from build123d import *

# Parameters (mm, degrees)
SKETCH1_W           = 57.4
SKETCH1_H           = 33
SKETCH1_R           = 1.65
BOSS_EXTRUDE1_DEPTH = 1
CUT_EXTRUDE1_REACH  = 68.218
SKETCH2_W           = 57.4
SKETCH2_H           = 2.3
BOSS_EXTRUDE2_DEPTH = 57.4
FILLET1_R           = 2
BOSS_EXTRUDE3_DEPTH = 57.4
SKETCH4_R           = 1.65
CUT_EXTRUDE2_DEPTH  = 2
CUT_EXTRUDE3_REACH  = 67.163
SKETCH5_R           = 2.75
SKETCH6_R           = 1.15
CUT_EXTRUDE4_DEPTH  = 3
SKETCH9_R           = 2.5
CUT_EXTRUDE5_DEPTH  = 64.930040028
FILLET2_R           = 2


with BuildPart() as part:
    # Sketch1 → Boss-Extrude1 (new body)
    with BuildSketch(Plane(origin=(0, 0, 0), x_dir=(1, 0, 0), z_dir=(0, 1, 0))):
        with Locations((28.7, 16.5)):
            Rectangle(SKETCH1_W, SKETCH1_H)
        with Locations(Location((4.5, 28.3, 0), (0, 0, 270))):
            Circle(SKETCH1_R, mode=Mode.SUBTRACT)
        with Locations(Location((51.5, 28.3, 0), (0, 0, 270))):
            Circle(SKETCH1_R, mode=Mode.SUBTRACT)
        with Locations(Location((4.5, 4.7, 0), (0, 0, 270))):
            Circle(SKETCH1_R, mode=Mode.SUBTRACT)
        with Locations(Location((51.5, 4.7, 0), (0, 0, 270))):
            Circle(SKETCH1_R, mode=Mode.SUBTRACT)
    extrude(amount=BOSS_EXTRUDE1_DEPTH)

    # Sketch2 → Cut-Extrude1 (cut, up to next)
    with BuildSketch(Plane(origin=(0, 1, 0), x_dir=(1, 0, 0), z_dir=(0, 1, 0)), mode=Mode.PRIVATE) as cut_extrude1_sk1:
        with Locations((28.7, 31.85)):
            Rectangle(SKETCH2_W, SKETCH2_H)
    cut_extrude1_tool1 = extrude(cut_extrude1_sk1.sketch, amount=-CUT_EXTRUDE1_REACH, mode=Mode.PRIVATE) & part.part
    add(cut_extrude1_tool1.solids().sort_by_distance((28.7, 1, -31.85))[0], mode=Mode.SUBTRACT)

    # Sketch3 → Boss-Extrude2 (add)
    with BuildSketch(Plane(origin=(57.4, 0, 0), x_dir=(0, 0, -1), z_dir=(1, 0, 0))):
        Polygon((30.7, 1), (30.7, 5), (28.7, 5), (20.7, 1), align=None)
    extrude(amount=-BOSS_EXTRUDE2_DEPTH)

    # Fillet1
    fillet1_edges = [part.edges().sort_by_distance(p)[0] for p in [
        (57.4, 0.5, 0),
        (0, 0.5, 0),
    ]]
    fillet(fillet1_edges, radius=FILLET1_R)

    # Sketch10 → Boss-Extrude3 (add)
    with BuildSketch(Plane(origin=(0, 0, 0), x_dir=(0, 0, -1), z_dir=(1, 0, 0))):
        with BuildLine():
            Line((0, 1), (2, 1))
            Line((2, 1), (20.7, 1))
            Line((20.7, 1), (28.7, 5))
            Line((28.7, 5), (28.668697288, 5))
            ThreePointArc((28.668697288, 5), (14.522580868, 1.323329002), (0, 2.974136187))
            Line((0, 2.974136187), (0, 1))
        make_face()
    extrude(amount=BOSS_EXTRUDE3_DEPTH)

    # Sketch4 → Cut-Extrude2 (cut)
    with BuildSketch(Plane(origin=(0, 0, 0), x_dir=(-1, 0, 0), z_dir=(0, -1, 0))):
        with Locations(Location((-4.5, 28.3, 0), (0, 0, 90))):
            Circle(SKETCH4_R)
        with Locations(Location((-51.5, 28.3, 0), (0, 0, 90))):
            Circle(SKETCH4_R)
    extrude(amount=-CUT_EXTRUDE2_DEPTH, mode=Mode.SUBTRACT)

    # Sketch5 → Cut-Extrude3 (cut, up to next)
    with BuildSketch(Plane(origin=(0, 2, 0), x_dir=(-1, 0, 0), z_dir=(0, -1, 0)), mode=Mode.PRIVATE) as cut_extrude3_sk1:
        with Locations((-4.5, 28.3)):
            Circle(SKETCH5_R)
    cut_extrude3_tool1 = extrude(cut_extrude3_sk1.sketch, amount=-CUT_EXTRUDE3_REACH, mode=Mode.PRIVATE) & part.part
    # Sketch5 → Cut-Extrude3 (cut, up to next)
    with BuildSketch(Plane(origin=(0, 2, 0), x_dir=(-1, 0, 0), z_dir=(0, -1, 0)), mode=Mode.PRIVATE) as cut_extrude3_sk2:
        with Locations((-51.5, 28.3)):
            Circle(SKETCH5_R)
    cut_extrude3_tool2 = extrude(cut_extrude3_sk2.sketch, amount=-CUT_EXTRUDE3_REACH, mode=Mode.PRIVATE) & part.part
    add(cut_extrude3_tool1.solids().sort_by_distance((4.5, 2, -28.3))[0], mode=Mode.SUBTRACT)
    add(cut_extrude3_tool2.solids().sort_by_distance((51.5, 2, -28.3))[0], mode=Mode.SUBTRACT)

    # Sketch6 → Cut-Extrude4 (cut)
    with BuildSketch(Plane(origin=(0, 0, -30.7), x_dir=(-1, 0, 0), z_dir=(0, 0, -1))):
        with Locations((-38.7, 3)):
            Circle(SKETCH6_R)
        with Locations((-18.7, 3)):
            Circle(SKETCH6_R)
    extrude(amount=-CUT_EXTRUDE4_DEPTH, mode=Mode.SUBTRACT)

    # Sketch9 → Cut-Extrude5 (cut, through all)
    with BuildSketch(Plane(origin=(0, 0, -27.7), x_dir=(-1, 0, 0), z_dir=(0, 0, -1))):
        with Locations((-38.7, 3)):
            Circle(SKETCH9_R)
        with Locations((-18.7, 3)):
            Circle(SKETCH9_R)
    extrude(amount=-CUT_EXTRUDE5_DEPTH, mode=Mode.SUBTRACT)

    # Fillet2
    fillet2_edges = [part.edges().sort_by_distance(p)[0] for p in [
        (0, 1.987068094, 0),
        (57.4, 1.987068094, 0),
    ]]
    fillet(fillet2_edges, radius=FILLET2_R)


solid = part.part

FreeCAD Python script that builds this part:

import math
import FreeCAD as App
import Part
import Sketcher


def edges_at(feature, points):
    """Names of the edges that pass closest to the given points."""
    edges = feature.Shape.Edges
    near = lambda p: min(range(len(edges)), key=lambda i: edges[i].distToShape(Part.Vertex(*p))[0])
    return sorted({f"Edge{near(p) + 1}" for p in points})


def add_polygon(sketch, points):
    """Adds a closed chain of lines whose ends are joined by coincident constraints."""
    first, n = sketch.GeometryCount, len(points)
    for a, b in zip(points, points[1:] + points[:1]):
        sketch.addGeometry(Part.LineSegment(App.Vector(*a, 0), App.Vector(*b, 0)), False)
    for i in range(n):
        sketch.addConstraint(Sketcher.Constraint("Coincident", first + i, 2, first + (i + 1) % n, 1))

doc = App.newDocument("Part")
body = doc.addObject("PartDesign::Body", "Body")

# Sketch on XZ plane
sketch1 = body.newObject("Sketcher::SketchObject", "Sketch")
sketch1.AttachmentSupport = (doc.getObject("XZ_Plane"), [""])
sketch1.MapMode = "FlatFace"
add_polygon(sketch1, [(0, -33), (0, 0), (57.4, 0), (57.4, -33)])  # lines 0-3
sketch1.addGeometry(Part.Circle(App.Vector(4.5, -4.7, 0), App.Vector(0, 0, 1), 1.65), False)  # 4
sketch1.addGeometry(Part.Circle(App.Vector(51.5, -4.7, 0), App.Vector(0, 0, 1), 1.65), False)  # 5
sketch1.addGeometry(Part.Circle(App.Vector(4.5, -28.3, 0), App.Vector(0, 0, 1), 1.65), False)  # 6
sketch1.addGeometry(Part.Circle(App.Vector(51.5, -28.3, 0), App.Vector(0, 0, 1), 1.65), False)  # 7
sketch1.addConstraint([
    Sketcher.Constraint("Vertical", 0),
    Sketcher.Constraint("Horizontal", 1),
    Sketcher.Constraint("Vertical", 2),
    Sketcher.Constraint("Horizontal", 3),
    Sketcher.Constraint("Coincident", 0, 2, -1, 1),
    Sketcher.Constraint("Equal", 4, 5),
    Sketcher.Constraint("Equal", 5, 6),
    Sketcher.Constraint("Equal", 6, 7),
    Sketcher.Constraint("Horizontal", 4, 3, 5, 3),
    Sketcher.Constraint("Horizontal", 6, 3, 7, 3),
    Sketcher.Constraint("Vertical", 4, 3, 6, 3),
    Sketcher.Constraint("Vertical", 5, 3, 7, 3),
    Sketcher.Constraint("Diameter", 4, 3.3),
    Sketcher.Constraint("DistanceY", 0, 1, 0, 2, 33.0),
    Sketcher.Constraint("DistanceX", 1, 1, 1, 2, 57.4),
    Sketcher.Constraint("DistanceX", 4, 3, 5, 3, 47.0),
    Sketcher.Constraint("DistanceX", -1, 1, 4, 3, 4.5),
    Sketcher.Constraint("DistanceY", 4, 3, -1, 1, 4.7),
    Sketcher.Constraint("DistanceY", 6, 3, -1, 1, 28.3),
])
pad1 = body.newObject("PartDesign::Pad", "Pad")
pad1.Profile = sketch1
pad1.Length = 1
pad1.Reversed = True

# Sketch on XZ plane
sketch2 = body.newObject("Sketcher::SketchObject", "Sketch001")
sketch2.AttachmentSupport = (doc.getObject("XZ_Plane"), [""])
sketch2.MapMode = "FlatFace"
sketch2.AttachmentOffset = App.Placement(App.Vector(0, 0, -1), App.Rotation())
add_polygon(sketch2, [(0, -33), (0, -30.7), (57.4, -30.7), (57.4, -33)])  # lines 0-3
sketch2.addConstraint([
    Sketcher.Constraint("Vertical", 0),
    Sketcher.Constraint("Horizontal", 1),
    Sketcher.Constraint("Vertical", 2),
    Sketcher.Constraint("Horizontal", 3),
    Sketcher.Constraint("PointOnObject", 0, 2, -2),
    Sketcher.Constraint("DistanceX", 1, 1, 1, 2, 57.4),
    Sketcher.Constraint("DistanceY", 0, 1, 0, 2, 2.3),
    Sketcher.Constraint("DistanceY", 2, 2, -1, 1, 33.0),
])
pocket1 = body.newObject("PartDesign::Pocket", "Pocket")
pocket1.Profile = sketch2
pocket1.Type = "UpToFirst"
pocket1.Reversed = True

# Sketch on YZ plane
sketch3 = body.newObject("Sketcher::SketchObject", "Sketch002")
sketch3.AttachmentSupport = (doc.getObject("YZ_Plane"), [""])
sketch3.MapMode = "FlatFace"
sketch3.AttachmentOffset = App.Placement(App.Vector(0, 0, 57.4), App.Rotation())
add_polygon(sketch3, [(1, -30.7), (5, -30.7), (5, -28.7), (1, -20.7)])  # lines 0-3
sketch3.addConstraint([
    Sketcher.Constraint("Horizontal", 0),
    Sketcher.Constraint("Vertical", 1),
    Sketcher.Constraint("Vertical", 3),
    Sketcher.Constraint("DistanceX", 0, 1, 0, 2, 4.0),
    Sketcher.Constraint("DistanceY", 1, 1, 1, 2, 2.0),
    Sketcher.Constraint("DistanceY", 3, 2, 3, 1, 10.0),
    Sketcher.Constraint("DistanceX", -1, 1, 0, 2, 5.0),
    Sketcher.Constraint("DistanceY", 0, 2, -1, 1, 30.7),
])
pad2 = body.newObject("PartDesign::Pad", "Pad001")
pad2.Profile = sketch3
pad2.Length = 57.4
pad2.Reversed = True
doc.recompute()

fillet = body.newObject("PartDesign::Fillet", "Fillet")
fillet.Base = (pad2, edges_at(pad2, [(57.4, 0.5, 0), (0, 0.5, 0)]))
fillet.Radius = 2

# Sketch on YZ plane
sketch4 = body.newObject("Sketcher::SketchObject", "Sketch003")
sketch4.AttachmentSupport = (doc.getObject("YZ_Plane"), [""])
sketch4.MapMode = "FlatFace"
sketch4.addGeometry([
    Part.LineSegment(App.Vector(1, 0, 0), App.Vector(1, -20.7, 0)),  # 0
    Part.LineSegment(App.Vector(1, -20.7, 0), App.Vector(5, -28.7, 0)),  # 1
    Part.LineSegment(App.Vector(5, -28.7, 0), App.Vector(5, -28.668697, 0)),  # 2
    Part.ArcOfCircle(Part.Circle(App.Vector(41.223832, -11.703025, 0), App.Vector(0, 0, 1), 40), math.radians(162.987781), math.radians(205.096354)),  # 3
    Part.LineSegment(App.Vector(2.974136, 0, 0), App.Vector(1, 0, 0)),  # 4
], False)
sketch4.addConstraint([
    Sketcher.Constraint("Coincident", 0, 2, 1, 1),
    Sketcher.Constraint("Coincident", 1, 2, 2, 1),
    Sketcher.Constraint("Coincident", 2, 2, 3, 2),
    Sketcher.Constraint("Coincident", 3, 1, 4, 1),
    Sketcher.Constraint("Coincident", 4, 2, 0, 1),
    Sketcher.Constraint("Vertical", 0),
    Sketcher.Constraint("Vertical", 2),
    Sketcher.Constraint("Horizontal", 4),
    Sketcher.Constraint("PointOnObject", 3, 1, -1),
    Sketcher.Constraint("Radius", 3, 40.0),
    Sketcher.Constraint("DistanceY", 0, 2, 0, 1, 20.7),
    Sketcher.Constraint("DistanceX", -1, 1, 0, 2, 1.0),
    Sketcher.Constraint("DistanceX", -1, 1, 1, 2, 5.0),
    Sketcher.Constraint("DistanceY", 1, 2, 0, 2, 8.0),
    Sketcher.Constraint("DistanceX", 4, 2, 4, 1, 1.974136),
    Sketcher.Constraint("DistanceY", 2, 1, 2, 2, 0.031303),
])
pad3 = body.newObject("PartDesign::Pad", "Pad002")
pad3.Profile = sketch4
pad3.Length = 57.4

# Sketch on XZ plane
sketch5 = body.newObject("Sketcher::SketchObject", "Sketch004")
sketch5.AttachmentSupport = (doc.getObject("XZ_Plane"), [""])
sketch5.MapMode = "FlatFace"
sketch5.addGeometry([
    Part.Circle(App.Vector(4.5, -28.3, 0), App.Vector(0, 0, 1), 1.65),
    Part.Circle(App.Vector(51.5, -28.3, 0), App.Vector(0, 0, 1), 1.65),
], False)
sketch5.addConstraint([
    Sketcher.Constraint("Equal", 0, 1),
    Sketcher.Constraint("Horizontal", 0, 3, 1, 3),
    Sketcher.Constraint("Diameter", 0, 3.3),
    Sketcher.Constraint("DistanceX", 0, 3, 1, 3, 47.0),
    Sketcher.Constraint("DistanceX", -1, 1, 0, 3, 4.5),
    Sketcher.Constraint("DistanceY", 0, 3, -1, 1, 28.3),
])
pocket2 = body.newObject("PartDesign::Pocket", "Pocket001")
pocket2.Profile = sketch5
pocket2.Length = 2

# Sketch on XZ plane
sketch6 = body.newObject("Sketcher::SketchObject", "Sketch005")
sketch6.AttachmentSupport = (doc.getObject("XZ_Plane"), [""])
sketch6.MapMode = "FlatFace"
sketch6.AttachmentOffset = App.Placement(App.Vector(0, 0, -2), App.Rotation())
sketch6.addGeometry(Part.Circle(App.Vector(4.5, -28.3, 0), App.Vector(0, 0, 1), 2.75), False)
sketch6.addConstraint([
    Sketcher.Constraint("Diameter", 0, 5.5),
    Sketcher.Constraint("DistanceX", -1, 1, 0, 3, 4.5),
    Sketcher.Constraint("DistanceY", 0, 3, -1, 1, 28.3),
])
pocket3 = body.newObject("PartDesign::Pocket", "Pocket002")
pocket3.Profile = sketch6
pocket3.Type = "UpToFirst"

# Sketch on XZ plane
sketch7 = body.newObject("Sketcher::SketchObject", "Sketch006")
sketch7.AttachmentSupport = (doc.getObject("XZ_Plane"), [""])
sketch7.MapMode = "FlatFace"
sketch7.AttachmentOffset = App.Placement(App.Vector(0, 0, -2), App.Rotation())
sketch7.addGeometry(Part.Circle(App.Vector(51.5, -28.3, 0), App.Vector(0, 0, 1), 2.75), False)
sketch7.addConstraint([
    Sketcher.Constraint("Diameter", 0, 5.5),
    Sketcher.Constraint("DistanceX", -1, 1, 0, 3, 51.5),
    Sketcher.Constraint("DistanceY", 0, 3, -1, 1, 28.3),
])
pocket4 = body.newObject("PartDesign::Pocket", "Pocket003")
pocket4.Profile = sketch7
pocket4.Type = "UpToFirst"

# Sketch on XY plane
sketch8 = body.newObject("Sketcher::SketchObject", "Sketch007")
sketch8.AttachmentSupport = (doc.getObject("XY_Plane"), [""])
sketch8.MapMode = "FlatFace"
sketch8.AttachmentOffset = App.Placement(App.Vector(0, 0, -30.7), App.Rotation())
sketch8.addGeometry([
    Part.Circle(App.Vector(38.7, 3, 0), App.Vector(0, 0, 1), 1.15),
    Part.Circle(App.Vector(18.7, 3, 0), App.Vector(0, 0, 1), 1.15),
], False)
sketch8.addConstraint([
    Sketcher.Constraint("Equal", 0, 1),
    Sketcher.Constraint("Horizontal", 0, 3, 1, 3),
    Sketcher.Constraint("Diameter", 0, 2.3),
    Sketcher.Constraint("DistanceY", -1, 1, 0, 3, 3.0),
    Sketcher.Constraint("DistanceX", 1, 3, 0, 3, 20.0),
    Sketcher.Constraint("DistanceX", -1, 1, 0, 3, 38.7),
])
pocket5 = body.newObject("PartDesign::Pocket", "Pocket004")
pocket5.Profile = sketch8
pocket5.Length = 3
pocket5.Reversed = True

# Sketch on XY plane
sketch9 = body.newObject("Sketcher::SketchObject", "Sketch008")
sketch9.AttachmentSupport = (doc.getObject("XY_Plane"), [""])
sketch9.MapMode = "FlatFace"
sketch9.AttachmentOffset = App.Placement(App.Vector(0, 0, -27.7), App.Rotation())
sketch9.addGeometry([
    Part.Circle(App.Vector(38.7, 3, 0), App.Vector(0, 0, 1), 2.5),
    Part.Circle(App.Vector(18.7, 3, 0), App.Vector(0, 0, 1), 2.5),
], False)
sketch9.addConstraint([
    Sketcher.Constraint("Equal", 0, 1),
    Sketcher.Constraint("Horizontal", 0, 3, 1, 3),
    Sketcher.Constraint("Diameter", 0, 5.0),
    Sketcher.Constraint("DistanceY", -1, 1, 0, 3, 3.0),
    Sketcher.Constraint("DistanceX", 1, 3, 0, 3, 20.0),
    Sketcher.Constraint("DistanceX", -1, 1, 0, 3, 38.7),
])
pocket6 = body.newObject("PartDesign::Pocket", "Pocket005")
pocket6.Profile = sketch9
pocket6.Type = "ThroughAll"
pocket6.Reversed = True
doc.recompute()

fillet2 = body.newObject("PartDesign::Fillet", "Fillet001")
fillet2.Base = (pocket6, edges_at(pocket6, [(0, 1.987, 0), (57.4, 1.987, 0)]))
fillet2.Radius = 2

doc.recompute()
